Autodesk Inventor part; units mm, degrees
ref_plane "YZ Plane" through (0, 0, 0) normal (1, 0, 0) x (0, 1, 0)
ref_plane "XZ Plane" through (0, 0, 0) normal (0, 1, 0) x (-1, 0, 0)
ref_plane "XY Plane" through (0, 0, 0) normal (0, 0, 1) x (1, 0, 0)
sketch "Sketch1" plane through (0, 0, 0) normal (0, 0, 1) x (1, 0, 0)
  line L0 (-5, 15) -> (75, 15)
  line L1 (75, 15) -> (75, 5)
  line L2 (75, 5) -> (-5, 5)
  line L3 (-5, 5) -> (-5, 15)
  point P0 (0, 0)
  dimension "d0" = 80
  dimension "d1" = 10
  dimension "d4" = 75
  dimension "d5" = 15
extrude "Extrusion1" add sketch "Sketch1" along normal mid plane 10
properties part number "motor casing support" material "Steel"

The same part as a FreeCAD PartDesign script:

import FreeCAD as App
import Part
import Sketcher
from FreeCAD import Vector

doc = App.newDocument("Part")
body = doc.addObject("PartDesign::Body", "Body")

# Sketch on XY plane
sketch1 = body.newObject("Sketcher::SketchObject", "Sketch")
sketch1.AttachmentSupport = (doc.getObject("XY_Plane"), [""])
sketch1.MapMode = "FlatFace"
sketch1.addGeometry(Part.LineSegment(Vector(75, 15, 0), Vector(-5, 15, 0)), False)
sketch1.addGeometry(Part.LineSegment(Vector(-5, 15, 0), Vector(-5, 5, 0)), False)
sketch1.addGeometry(Part.LineSegment(Vector(-5, 5, 0), Vector(75, 5, 0)), False)
sketch1.addGeometry(Part.LineSegment(Vector(75, 5, 0), Vector(75, 15, 0)), False)
sketch1.addConstraint(Sketcher.Constraint("Coincident", 0, 2, 1, 1))
sketch1.addConstraint(Sketcher.Constraint("Coincident", 1, 2, 2, 1))
sketch1.addConstraint(Sketcher.Constraint("Coincident", 2, 2, 3, 1))
sketch1.addConstraint(Sketcher.Constraint("Coincident", 3, 2, 0, 1))
sketch1.addConstraint(Sketcher.Constraint("Horizontal", 0))
sketch1.addConstraint(Sketcher.Constraint("Vertical", 1))
sketch1.addConstraint(Sketcher.Constraint("Horizontal", 2))
sketch1.addConstraint(Sketcher.Constraint("Vertical", 3))
sketch1.addConstraint(Sketcher.Constraint("DistanceX", 0, 2, 0, 1, 80.0))
sketch1.addConstraint(Sketcher.Constraint("DistanceY", 1, 2, 1, 1, 10.0))
sketch1.addConstraint(Sketcher.Constraint("DistanceY", -1, 1, 0, 2, 15.0))
sketch1.addConstraint(Sketcher.Constraint("DistanceX", -1, 1, 2, 2, 75.0))
pad1 = body.newObject("PartDesign::Pad", "Pad")
pad1.Profile = sketch1
pad1.Length = 10
pad1.Midplane = True

doc.recompute()
